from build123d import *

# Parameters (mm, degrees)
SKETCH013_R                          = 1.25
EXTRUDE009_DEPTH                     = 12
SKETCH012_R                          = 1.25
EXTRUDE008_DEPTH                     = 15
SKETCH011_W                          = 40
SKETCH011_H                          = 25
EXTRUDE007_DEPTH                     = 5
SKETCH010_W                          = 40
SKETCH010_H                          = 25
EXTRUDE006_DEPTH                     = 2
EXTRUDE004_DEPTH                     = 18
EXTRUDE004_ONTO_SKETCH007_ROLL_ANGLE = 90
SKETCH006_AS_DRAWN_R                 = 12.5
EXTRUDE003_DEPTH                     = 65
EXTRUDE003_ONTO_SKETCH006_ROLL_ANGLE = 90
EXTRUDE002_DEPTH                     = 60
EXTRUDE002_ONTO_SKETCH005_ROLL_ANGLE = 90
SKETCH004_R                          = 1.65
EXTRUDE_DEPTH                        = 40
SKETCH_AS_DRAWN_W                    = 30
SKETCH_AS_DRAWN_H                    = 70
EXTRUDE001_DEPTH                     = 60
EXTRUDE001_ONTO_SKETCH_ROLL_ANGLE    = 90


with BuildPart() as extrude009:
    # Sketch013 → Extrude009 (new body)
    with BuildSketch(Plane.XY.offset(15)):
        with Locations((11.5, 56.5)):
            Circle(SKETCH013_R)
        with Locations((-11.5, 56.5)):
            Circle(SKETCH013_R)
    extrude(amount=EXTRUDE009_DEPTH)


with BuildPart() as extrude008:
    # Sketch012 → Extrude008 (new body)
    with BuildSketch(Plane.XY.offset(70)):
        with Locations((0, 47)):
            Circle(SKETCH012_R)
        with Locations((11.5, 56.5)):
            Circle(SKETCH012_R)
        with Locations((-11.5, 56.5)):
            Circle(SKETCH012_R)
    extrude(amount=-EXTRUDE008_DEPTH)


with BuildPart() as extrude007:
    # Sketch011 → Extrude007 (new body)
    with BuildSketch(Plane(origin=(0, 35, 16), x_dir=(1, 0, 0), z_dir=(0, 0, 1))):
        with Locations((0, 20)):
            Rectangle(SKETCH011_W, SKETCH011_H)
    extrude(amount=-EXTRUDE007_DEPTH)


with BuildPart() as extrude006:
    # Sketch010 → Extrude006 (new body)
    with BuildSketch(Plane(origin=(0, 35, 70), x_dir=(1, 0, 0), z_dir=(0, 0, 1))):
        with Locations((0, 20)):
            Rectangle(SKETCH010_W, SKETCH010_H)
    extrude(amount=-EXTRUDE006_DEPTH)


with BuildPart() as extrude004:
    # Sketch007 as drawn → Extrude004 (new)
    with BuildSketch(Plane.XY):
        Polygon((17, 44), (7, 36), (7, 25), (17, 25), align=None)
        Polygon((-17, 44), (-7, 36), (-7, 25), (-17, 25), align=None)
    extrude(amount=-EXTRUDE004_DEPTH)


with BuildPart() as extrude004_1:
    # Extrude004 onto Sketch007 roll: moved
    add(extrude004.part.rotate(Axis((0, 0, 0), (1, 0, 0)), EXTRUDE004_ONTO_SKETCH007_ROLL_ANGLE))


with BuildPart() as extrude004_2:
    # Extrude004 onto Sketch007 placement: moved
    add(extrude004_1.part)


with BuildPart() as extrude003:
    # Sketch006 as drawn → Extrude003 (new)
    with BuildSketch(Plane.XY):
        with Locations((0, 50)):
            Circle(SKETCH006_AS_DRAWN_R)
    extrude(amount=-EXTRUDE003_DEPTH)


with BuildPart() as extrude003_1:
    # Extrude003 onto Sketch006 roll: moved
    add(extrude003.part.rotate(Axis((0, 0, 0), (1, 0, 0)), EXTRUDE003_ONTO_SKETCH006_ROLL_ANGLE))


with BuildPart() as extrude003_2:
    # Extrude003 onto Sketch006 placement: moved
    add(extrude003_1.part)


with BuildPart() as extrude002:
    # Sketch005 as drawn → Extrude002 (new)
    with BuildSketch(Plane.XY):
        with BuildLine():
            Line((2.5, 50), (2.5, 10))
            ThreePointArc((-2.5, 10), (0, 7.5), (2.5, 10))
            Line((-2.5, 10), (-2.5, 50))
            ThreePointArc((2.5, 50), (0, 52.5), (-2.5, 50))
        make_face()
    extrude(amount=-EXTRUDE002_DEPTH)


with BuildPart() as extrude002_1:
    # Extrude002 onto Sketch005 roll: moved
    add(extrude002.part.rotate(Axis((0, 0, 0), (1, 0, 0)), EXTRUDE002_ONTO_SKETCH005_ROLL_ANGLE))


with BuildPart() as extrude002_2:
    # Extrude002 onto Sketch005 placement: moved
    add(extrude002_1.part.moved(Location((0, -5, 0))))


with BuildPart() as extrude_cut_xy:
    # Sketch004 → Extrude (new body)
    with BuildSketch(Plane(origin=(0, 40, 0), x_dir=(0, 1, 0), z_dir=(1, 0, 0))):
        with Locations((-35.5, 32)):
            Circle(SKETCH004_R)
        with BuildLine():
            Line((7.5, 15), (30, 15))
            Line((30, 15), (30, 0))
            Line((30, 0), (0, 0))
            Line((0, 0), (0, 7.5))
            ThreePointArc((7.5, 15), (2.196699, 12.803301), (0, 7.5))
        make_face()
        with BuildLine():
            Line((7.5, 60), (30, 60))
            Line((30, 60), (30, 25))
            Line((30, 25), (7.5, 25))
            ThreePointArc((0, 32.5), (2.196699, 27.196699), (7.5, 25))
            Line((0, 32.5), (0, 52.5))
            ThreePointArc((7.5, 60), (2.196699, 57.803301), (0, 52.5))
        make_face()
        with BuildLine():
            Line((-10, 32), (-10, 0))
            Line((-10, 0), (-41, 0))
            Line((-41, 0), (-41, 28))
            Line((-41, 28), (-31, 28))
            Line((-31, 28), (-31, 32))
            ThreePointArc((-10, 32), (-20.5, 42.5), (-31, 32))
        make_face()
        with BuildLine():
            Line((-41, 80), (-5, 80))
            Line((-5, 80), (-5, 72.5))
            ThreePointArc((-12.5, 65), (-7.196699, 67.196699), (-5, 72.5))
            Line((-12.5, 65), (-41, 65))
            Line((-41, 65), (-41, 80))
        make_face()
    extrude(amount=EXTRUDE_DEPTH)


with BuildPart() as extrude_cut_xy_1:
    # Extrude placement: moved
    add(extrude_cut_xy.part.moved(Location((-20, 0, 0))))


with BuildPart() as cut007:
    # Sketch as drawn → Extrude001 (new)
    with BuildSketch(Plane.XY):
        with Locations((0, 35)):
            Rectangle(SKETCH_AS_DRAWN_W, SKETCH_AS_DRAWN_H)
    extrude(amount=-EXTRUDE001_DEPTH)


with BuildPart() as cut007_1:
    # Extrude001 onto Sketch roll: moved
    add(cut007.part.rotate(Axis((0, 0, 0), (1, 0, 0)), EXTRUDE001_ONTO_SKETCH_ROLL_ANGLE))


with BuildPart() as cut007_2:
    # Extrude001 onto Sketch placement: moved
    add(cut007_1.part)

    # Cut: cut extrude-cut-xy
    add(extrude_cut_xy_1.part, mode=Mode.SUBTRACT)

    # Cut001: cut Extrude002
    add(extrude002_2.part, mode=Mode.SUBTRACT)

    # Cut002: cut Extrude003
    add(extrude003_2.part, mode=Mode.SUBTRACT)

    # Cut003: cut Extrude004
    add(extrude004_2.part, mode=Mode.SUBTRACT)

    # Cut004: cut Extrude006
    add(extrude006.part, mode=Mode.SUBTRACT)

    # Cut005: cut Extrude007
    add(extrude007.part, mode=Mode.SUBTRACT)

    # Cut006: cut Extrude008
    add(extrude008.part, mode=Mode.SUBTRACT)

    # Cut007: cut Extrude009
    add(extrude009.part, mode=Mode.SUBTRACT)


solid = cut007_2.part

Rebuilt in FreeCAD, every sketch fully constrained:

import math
import FreeCAD as App
import Part
import Sketcher

V = App.Vector


def add_polygon(sketch, points):
    """Adds a closed chain of lines whose ends are joined by coincident constraints."""
    first, n = sketch.GeometryCount, len(points)
    for a, b in zip(points, points[1:] + points[:1]):
        sketch.addGeometry(Part.LineSegment(App.Vector(*a, 0), App.Vector(*b, 0)), False)
    for i in range(n):
        sketch.addConstraint(Sketcher.Constraint("Coincident", first + i, 2, first + (i + 1) % n, 1))

doc = App.newDocument("Part")
body = doc.addObject("PartDesign::Body", "Body")
body.AllowCompound = True

# Sketch on XY plane
sketch1 = body.newObject("Sketcher::SketchObject", "Sketch")
sketch1.AttachmentSupport = (doc.getObject("XY_Plane"), [""])
sketch1.MapMode = "FlatFace"
sketch1.AttachmentOffset = App.Placement(V(0, 0, 15), App.Rotation())
sketch1.addGeometry(Part.Circle(V(11.5, 56.5, 0), V(0, 0, 1), 1.2), False)
sketch1.addGeometry(Part.Circle(V(-11.5, 56.5, 0), V(0, 0, 1), 1.2), False)
sketch1.addConstraint(Sketcher.Constraint("Equal", 0, 1))
sketch1.addConstraint(Sketcher.Constraint("Symmetric", 0, 3, 1, 3, -2))
sketch1.addConstraint(Sketcher.Constraint("Diameter", 0, 2.5))
sketch1.addConstraint(Sketcher.Constraint("DistanceX", 1, 3, 0, 3, 23.0))
sketch1.addConstraint(Sketcher.Constraint("DistanceY", -1, 1, 0, 3, 56.5))
pad1 = body.newObject("PartDesign::Pad", "Pad")
pad1.Profile = sketch1
pad1.Length = 12
body2 = doc.addObject("PartDesign::Body", "Body001")
body2.AllowCompound = True

# Sketch on XY plane
sketch2 = body2.newObject("Sketcher::SketchObject", "Sketch001")
sketch2.AttachmentSupport = (doc.getObject("XY_Plane001"), [""])
sketch2.MapMode = "FlatFace"
sketch2.AttachmentOffset = App.Placement(V(0, 0, 70), App.Rotation())
sketch2.addGeometry(Part.Circle(V(0, 47, 0), V(0, 0, 1), 1.2), False)
sketch2.addGeometry(Part.Circle(V(11.5, 56.5, 0), V(0, 0, 1), 1.2), False)
sketch2.addGeometry(Part.Circle(V(-11.5, 56.5, 0), V(0, 0, 1), 1.2), False)
sketch2.addConstraint(Sketcher.Constraint("Equal", 0, 1))
sketch2.addConstraint(Sketcher.Constraint("Equal", 1, 2))
sketch2.addConstraint(Sketcher.Constraint("Symmetric", 1, 3, 2, 3, -2))
sketch2.addConstraint(Sketcher.Constraint("PointOnObject", 0, 3, -2))
sketch2.addConstraint(Sketcher.Constraint("Diameter", 0, 2.5))
sketch2.addConstraint(Sketcher.Constraint("DistanceY", -1, 1, 0, 3, 47.0))
sketch2.addConstraint(Sketcher.Constraint("DistanceX", 2, 3, 1, 3, 23.0))
sketch2.addConstraint(Sketcher.Constraint("DistanceY", -1, 1, 1, 3, 56.5))
pad2 = body2.newObject("PartDesign::Pad", "Pad001")
pad2.Profile = sketch2
pad2.Length = 15
pad2.Reversed = True
body3 = doc.addObject("PartDesign::Body", "Body002")

# Sketch on XY plane
sketch3 = body3.newObject("Sketcher::SketchObject", "Sketch002")
sketch3.AttachmentSupport = (doc.getObject("XY_Plane002"), [""])
sketch3.MapMode = "FlatFace"
sketch3.AttachmentOffset = App.Placement(V(0, 0, 16), App.Rotation())
add_polygon(sketch3, [(-20, 68), (-20, 42), (20, 42), (20, 68)])  # lines 0-3
sketch3.addConstraint(Sketcher.Constraint("Vertical", 0))
sketch3.addConstraint(Sketcher.Constraint("Horizontal", 1))
sketch3.addConstraint(Sketcher.Constraint("Vertical", 2))
sketch3.addConstraint(Sketcher.Constraint("Horizontal", 3))
sketch3.addConstraint(Sketcher.Constraint("DistanceX", 1, 1, 1, 2, 40.0))
sketch3.addConstraint(Sketcher.Constraint("DistanceY", 0, 2, 0, 1, 25.0))
sketch3.addConstraint(Sketcher.Constraint("DistanceX", 0, 2, -1, 1, 20.0))
sketch3.addConstraint(Sketcher.Constraint("DistanceY", -1, 1, 0, 2, 42.5))
pad3 = body3.newObject("PartDesign::Pad", "Pad002")
pad3.Profile = sketch3
pad3.Length = 5
pad3.Reversed = True
body4 = doc.addObject("PartDesign::Body", "Body003")

# Sketch on XY plane
sketch4 = body4.newObject("Sketcher::SketchObject", "Sketch003")
sketch4.AttachmentSupport = (doc.getObject("XY_Plane003"), [""])
sketch4.MapMode = "FlatFace"
sketch4.AttachmentOffset = App.Placement(V(0, 0, 70), App.Rotation())
add_polygon(sketch4, [(-20, 68), (-20, 42), (20, 42), (20, 68)])  # lines 0-3
sketch4.addConstraint(Sketcher.Constraint("Vertical", 0))
sketch4.addConstraint(Sketcher.Constraint("Horizontal", 1))
sketch4.addConstraint(Sketcher.Constraint("Vertical", 2))
sketch4.addConstraint(Sketcher.Constraint("Horizontal", 3))
sketch4.addConstraint(Sketcher.Constraint("DistanceX", 1, 1, 1, 2, 40.0))
sketch4.addConstraint(Sketcher.Constraint("DistanceY", 0, 2, 0, 1, 25.0))
sketch4.addConstraint(Sketcher.Constraint("DistanceX", 0, 2, -1, 1, 20.0))
sketch4.addConstraint(Sketcher.Constraint("DistanceY", -1, 1, 0, 2, 42.5))
pad4 = body4.newObject("PartDesign::Pad", "Pad003")
pad4.Profile = sketch4
pad4.Length = 2
pad4.Reversed = True
body5 = doc.addObject("PartDesign::Body", "Body004")
body5.AllowCompound = True

# Sketch on XY plane
sketch5 = body5.newObject("Sketcher::SketchObject", "Sketch004")
sketch5.AttachmentSupport = (doc.getObject("XY_Plane004"), [""])
sketch5.MapMode = "FlatFace"
add_polygon(sketch5, [(17, 44), (7, 36), (7, 25), (17, 25)])  # lines 0-3
add_polygon(sketch5, [(-7, 36), (-17, 44), (-17, 25), (-7, 25)])  # lines 4-7
sketch5.addConstraint(Sketcher.Constraint("Vertical", 1))
sketch5.addConstraint(Sketcher.Constraint("Horizontal", 2))
sketch5.addConstraint(Sketcher.Constraint("Vertical", 3))
sketch5.addConstraint(Sketcher.Constraint("Vertical", 5))
sketch5.addConstraint(Sketcher.Constraint("Horizontal", 6))
sketch5.addConstraint(Sketcher.Constraint("Vertical", 7))
sketch5.addConstraint(Sketcher.Constraint("Symmetric", 3, 2, 4, 2, -2))
sketch5.addConstraint(Sketcher.Constraint("Symmetric", 1, 2, 6, 2, -2))
sketch5.addConstraint(Sketcher.Constraint("Horizontal", 0, 2, 7, 2))
sketch5.addConstraint(Sketcher.Constraint("DistanceX", 2, 1, 2, 2, 10.0))
sketch5.addConstraint(Sketcher.Constraint("DistanceY", 1, 2, 1, 1, 11.0))
sketch5.addConstraint(Sketcher.Constraint("DistanceY", 3, 1, 3, 2, 19.0))
sketch5.addConstraint(Sketcher.Constraint("DistanceX", -1, 1, 0, 2, 7.0))
sketch5.addConstraint(Sketcher.Constraint("DistanceY", -1, 1, 0, 2, 36.0))
pad5 = body5.newObject("PartDesign::Pad", "Pad004")
pad5.Profile = sketch5
pad5.Length = 18
pad5.Reversed = True
body6 = doc.addObject("PartDesign::Body", "Body005")
body6.AllowCompound = True
doc.recompute()

body5.Placement = App.Placement(V(0, 0, 0), App.Rotation(V(1, 0, 0), 90))
boolean = body6.newObject("PartDesign::Boolean", "Boolean")
boolean.Type = "Fuse"
boolean.addObjects([body5])
body7 = doc.addObject("PartDesign::Body", "Body006")

# Sketch on XY plane
sketch6 = body7.newObject("Sketcher::SketchObject", "Sketch005")
sketch6.AttachmentSupport = (doc.getObject("XY_Plane006"), [""])
sketch6.MapMode = "FlatFace"
sketch6.addGeometry(Part.Circle(V(0, 50, 0), V(0, 0, 1), 12), False)
sketch6.addConstraint(Sketcher.Constraint("PointOnObject", 0, 3, -2))
sketch6.addConstraint(Sketcher.Constraint("Diameter", 0, 25.0))
sketch6.addConstraint(Sketcher.Constraint("DistanceY", -1, 1, 0, 3, 50.0))
pad6 = body7.newObject("PartDesign::Pad", "Pad005")
pad6.Profile = sketch6
pad6.Length = 65
pad6.Reversed = True
body8 = doc.addObject("PartDesign::Body", "Body007")
doc.recompute()

body7.Placement = App.Placement(V(0, 0, 0), App.Rotation(V(1, 0, 0), 90))
boolean2 = body8.newObject("PartDesign::Boolean", "Boolean001")
boolean2.Type = "Fuse"
boolean2.addObjects([body7])
body9 = doc.addObject("PartDesign::Body", "Body008")

# Sketch on XY plane
sketch7 = body9.newObject("Sketcher::SketchObject", "Sketch006")
sketch7.AttachmentSupport = (doc.getObject("XY_Plane008"), [""])
sketch7.MapMode = "FlatFace"
sketch7.addGeometry(Part.LineSegment(V(2.5, 10, 0), V(2.5, 50, 0)), False)
sketch7.addGeometry(Part.ArcOfCircle(Part.Circle(V(0, 50, 0), V(0, 0, 1), 2.5), math.radians(0), math.radians(180)), False)
sketch7.addGeometry(Part.LineSegment(V(-2.5, 50, 0), V(-2.5, 10, 0)), False)
sketch7.addGeometry(Part.ArcOfCircle(Part.Circle(V(0, 10, 0), V(0, 0, 1), 2.5), math.radians(180), math.radians(360)), False)
sketch7.addConstraint(Sketcher.Constraint("Tangent", 0, 2, 1, 1))
sketch7.addConstraint(Sketcher.Constraint("Tangent", 1, 2, 2, 1))
sketch7.addConstraint(Sketcher.Constraint("Tangent", 2, 2, 3, 1))
sketch7.addConstraint(Sketcher.Constraint("Tangent", 3, 2, 0, 1))
sketch7.addConstraint(Sketcher.Constraint("Vertical", 0))
sketch7.addConstraint(Sketcher.Constraint("Vertical", 2))
sketch7.addConstraint(Sketcher.Constraint("PointOnObject", 1, 3, -2))
sketch7.addConstraint(Sketcher.Constraint("Radius", 1, 2.5))
sketch7.addConstraint(Sketcher.Constraint("DistanceY", 0, 1, 0, 2, 40.0))
sketch7.addConstraint(Sketcher.Constraint("DistanceY", -1, 1, 1, 3, 50.0))
pad7 = body9.newObject("PartDesign::Pad", "Pad006")
pad7.Profile = sketch7
pad7.Length = 60
pad7.Reversed = True
body10 = doc.addObject("PartDesign::Body", "Body009")
doc.recompute()

body9.Placement = App.Placement(V(0, 0, 0), App.Rotation(V(1, 0, 0), 90))
boolean3 = body10.newObject("PartDesign::Boolean", "Boolean002")
boolean3.Type = "Fuse"
boolean3.addObjects([body9])
body11 = doc.addObject("PartDesign::Body", "Body010")
doc.recompute()

body10.Placement = App.Placement(V(0, -5, 0), App.Rotation(V(0, 0, 1), 0))
boolean4 = body11.newObject("PartDesign::Boolean", "Boolean003")
boolean4.Type = "Fuse"
boolean4.addObjects([body10])
body12 = doc.addObject("PartDesign::Body", "Body011")
body12.AllowCompound = True

# Sketch on YZ plane
sketch8 = body12.newObject("Sketcher::SketchObject", "Sketch007")
sketch8.AttachmentSupport = (doc.getObject("YZ_Plane011"), [""])
sketch8.MapMode = "FlatFace"
sketch8.addGeometry(Part.Circle(V(4.5, 32, 0), V(0, 0, 1), 1.6), False)
sketch8.addGeometry(Part.LineSegment(V(70, 15, 0), V(47.5, 15, 0)), False)
sketch8.addGeometry(Part.ArcOfCircle(Part.Circle(V(47.5, 7.5, 0), V(0, 0, 1), 7.5), math.radians(90), math.radians(180)), False)
sketch8.addGeometry(Part.LineSegment(V(40, 7.5, 0), V(40, 0, 0)), False)
sketch8.addGeometry(Part.LineSegment(V(40, 0, 0), V(70, 0, 0)), False)
sketch8.addGeometry(Part.LineSegment(V(70, 0, 0), V(70, 15, 0)), False)
sketch8.addGeometry(Part.LineSegment(V(70, 60, 0), V(47.5, 60, 0)), False)
sketch8.addGeometry(Part.ArcOfCircle(Part.Circle(V(47.5, 52.5, 0), V(0, 0, 1), 7.5), math.radians(90), math.radians(180)), False)
sketch8.addGeometry(Part.LineSegment(V(40, 52.5, 0), V(40, 32.5, 0)), False)
sketch8.addGeometry(Part.ArcOfCircle(Part.Circle(V(47.5, 32.5, 0), V(0, 0, 1), 7.5), math.radians(180), math.radians(270)), False)
sketch8.addGeometry(Part.LineSegment(V(47.5, 25, 0), V(70, 25, 0)), False)
sketch8.addGeometry(Part.LineSegment(V(70, 25, 0), V(70, 60, 0)), False)
sketch8.addGeometry(Part.LineSegment(V(30, 0, 0), V(30, 32, 0)), False)
sketch8.addGeometry(Part.ArcOfCircle(Part.Circle(V(19.5, 32, 0), V(0, 0, 1), 10.5), math.radians(0), math.radians(180)), False)
sketch8.addGeometry(Part.LineSegment(V(9, 32, 0), V(9, 28, 0)), False)
sketch8.addGeometry(Part.LineSegment(V(9, 28, 0), V(-1, 28, 0)), False)
sketch8.addGeometry(Part.LineSegment(V(-1, 28, 0), V(-1, 0, 0)), False)
sketch8.addGeometry(Part.LineSegment(V(-1, 0, 0), V(30, 0, 0)), False)
sketch8.addGeometry(Part.LineSegment(V(35, 80, 0), V(-1, 80, 0)), False)
sketch8.addGeometry(Part.LineSegment(V(-1, 80, 0), V(-1, 65, 0)), False)
sketch8.addGeometry(Part.LineSegment(V(-1, 65, 0), V(27.5, 65, 0)), False)
sketch8.addGeometry(Part.ArcOfCircle(Part.Circle(V(27.5, 72.5, 0), V(0, 0, 1), 7.5), math.radians(-90), math.radians(0)), False)
sketch8.addGeometry(Part.LineSegment(V(35, 72.5, 0), V(35, 80, 0)), False)
sketch8.addConstraint(Sketcher.Constraint("Tangent", 1, 2, 2, 1))
sketch8.addConstraint(Sketcher.Constraint("Tangent", 2, 2, 3, 1))
sketch8.addConstraint(Sketcher.Constraint("Coincident", 3, 2, 4, 1))
sketch8.addConstraint(Sketcher.Constraint("Coincident", 4, 2, 5, 1))
sketch8.addConstraint(Sketcher.Constraint("Coincident", 5, 2, 1, 1))
sketch8.addConstraint(Sketcher.Constraint("Tangent", 6, 2, 7, 1))
sketch8.addConstraint(Sketcher.Constraint("Tangent", 7, 2, 8, 1))
sketch8.addConstraint(Sketcher.Constraint("Tangent", 8, 2, 9, 1))
sketch8.addConstraint(Sketcher.Constraint("Tangent", 9, 2, 10, 1))
sketch8.addConstraint(Sketcher.Constraint("Coincident", 10, 2, 11, 1))
sketch8.addConstraint(Sketcher.Constraint("Coincident", 11, 2, 6, 1))
sketch8.addConstraint(Sketcher.Constraint("Tangent", 12, 2, 13, 1))
sketch8.addConstraint(Sketcher.Constraint("Tangent", 13, 2, 14, 1))
sketch8.addConstraint(Sketcher.Constraint("Coincident", 14, 2, 15, 1))
sketch8.addConstraint(Sketcher.Constraint("Coincident", 15, 2, 16, 1))
sketch8.addConstraint(Sketcher.Constraint("Coincident", 16, 2, 17, 1))
sketch8.addConstraint(Sketcher.Constraint("Coincident", 17, 2, 12, 1))
sketch8.addConstraint(Sketcher.Constraint("Coincident", 18, 2, 19, 1))
sketch8.addConstraint(Sketcher.Constraint("Coincident", 19, 2, 20, 1))
sketch8.addConstraint(Sketcher.Constraint("Tangent", 20, 2, 21, 1))
sketch8.addConstraint(Sketcher.Constraint("Tangent", 21, 2, 22, 1))
sketch8.addConstraint(Sketcher.Constraint("Coincident", 22, 2, 18, 1))
sketch8.addConstraint(Sketcher.Constraint("Horizontal", 1))
sketch8.addConstraint(Sketcher.Constraint("Vertical", 3))
sketch8.addConstraint(Sketcher.Constraint("Horizontal", 4))
sketch8.addConstraint(Sketcher.Constraint("Vertical", 5))
sketch8.addConstraint(Sketcher.Constraint("Horizontal", 6))
sketch8.addConstraint(Sketcher.Constraint("Vertical", 8))
sketch8.addConstraint(Sketcher.Constraint("Horizontal", 10))
sketch8.addConstraint(Sketcher.Constraint("Vertical", 11))
sketch8.addConstraint(Sketcher.Constraint("Vertical", 12))
sketch8.addConstraint(Sketcher.Constraint("Vertical", 14))
sketch8.addConstraint(Sketcher.Constraint("Horizontal", 15))
sketch8.addConstraint(Sketcher.Constraint("Vertical", 16))
sketch8.addConstraint(Sketcher.Constraint("Horizontal", 17))
sketch8.addConstraint(Sketcher.Constraint("Horizontal", 18))
sketch8.addConstraint(Sketcher.Constraint("Vertical", 19))
sketch8.addConstraint(Sketcher.Constraint("Horizontal", 20))
sketch8.addConstraint(Sketcher.Constraint("Vertical", 22))
sketch8.addConstraint(Sketcher.Constraint("Equal", 2, 7))
sketch8.addConstraint(Sketcher.Constraint("Equal", 7, 9))
sketch8.addConstraint(Sketcher.Constraint("Equal", 9, 21))
sketch8.addConstraint(Sketcher.Constraint("PointOnObject", 3, 2, -1))
sketch8.addConstraint(Sketcher.Constraint("PointOnObject", 16, 2, -1))
sketch8.addConstraint(Sketcher.Constraint("Horizontal", 0, 3, 13, 3))
sketch8.addConstraint(Sketcher.Constraint("Vertical", 2, 3, 7, 3))
sketch8.addConstraint(Sketcher.Constraint("Vertical", 5, 2, 10, 2))
sketch8.addConstraint(Sketcher.Constraint("Vertical", 16, 2, 18, 2))
sketch8.addConstraint(Sketcher.Constraint("Equal", 5, 19))
sketch8.addConstraint(Sketcher.Constraint("Diameter", 0, 3.3))
sketch8.addConstraint(Sketcher.Constraint("Radius", 2, 7.5))
sketch8.addConstraint(Sketcher.Constraint("Radius", 13, 10.5))
sketch8.addConstraint(Sketcher.Constraint("DistanceX", 4, 1, 4, 2, 30.0))
sketch8.addConstraint(Sketcher.Constraint("DistanceX", 15, 2, 15, 1, 10.0))
sketch8.addConstraint(Sketcher.Constraint("DistanceX", 18, 2, 18, 1, 36.0))
sketch8.addConstraint(Sketcher.Constraint("DistanceY", 5, 1, 5, 2, 15.0))
sketch8.addConstraint(Sketcher.Constraint("DistanceY", 8, 2, 8, 1, 20.0))
sketch8.addConstraint(Sketcher.Constraint("DistanceY", 12, 1, 12, 2, 32.0))
sketch8.addConstraint(Sketcher.Constraint("DistanceY", 14, 2, 14, 1, 4.0))
sketch8.addConstraint(Sketcher.Constraint("DistanceX", -1, 1, 2, 2, 40.0))
sketch8.addConstraint(Sketcher.Constraint("DistanceY", -1, 1, 6, 2, 60.0))
sketch8.addConstraint(Sketcher.Constraint("DistanceX", -1, 1, 12, 2, 30.0))
sketch8.addConstraint(Sketcher.Constraint("DistanceY", -1, 1, 18, 2, 80.0))
sketch8.addConstraint(Sketcher.Constraint("DistanceX", 0, 3, 2, 3, 43.0))
pad8 = body12.newObject("PartDesign::Pad", "Pad007")
pad8.Profile = sketch8
pad8.Length = 40
body13 = doc.addObject("PartDesign::Body", "Body012")
body13.AllowCompound = True
doc.recompute()

body12.Placement = App.Placement(V(-20, 0, 0), App.Rotation(V(0, 0, 1), 0))
boolean5 = body13.newObject("PartDesign::Boolean", "Boolean004")
boolean5.Type = "Fuse"
boolean5.addObjects([body12])
body14 = doc.addObject("PartDesign::Body", "Body013")

# Sketch on XY plane
sketch9 = body14.newObject("Sketcher::SketchObject", "Sketch008")
sketch9.AttachmentSupport = (doc.getObject("XY_Plane013"), [""])
sketch9.MapMode = "FlatFace"
add_polygon(sketch9, [(-15, 70), (-15, 0), (15, 0), (15, 70)])  # lines 0-3
sketch9.addConstraint(Sketcher.Constraint("Vertical", 0))
sketch9.addConstraint(Sketcher.Constraint("Horizontal", 1))
sketch9.addConstraint(Sketcher.Constraint("Vertical", 2))
sketch9.addConstraint(Sketcher.Constraint("Horizontal", 3))
sketch9.addConstraint(Sketcher.Constraint("Symmetric", 0, 2, 1, 2, -1, 1))
sketch9.addConstraint(Sketcher.Constraint("DistanceX", 1, 1, 1, 2, 30.0))
sketch9.addConstraint(Sketcher.Constraint("DistanceY", 0, 2, 0, 1, 70.0))
pad9 = body14.newObject("PartDesign::Pad", "Pad008")
pad9.Profile = sketch9
pad9.Length = 60
pad9.Reversed = True
body15 = doc.addObject("PartDesign::Body", "Body014")
doc.recompute()

body14.Placement = App.Placement(V(0, 0, 0), App.Rotation(V(1, 0, 0), 90))
boolean6 = body15.newObject("PartDesign::Boolean", "Boolean005")
boolean6.Type = "Fuse"
boolean6.addObjects([body14])
doc.recompute()

boolean7 = body15.newObject("PartDesign::Boolean", "Boolean006")
boolean7.Type = "Cut"
boolean7.addObjects([body13])
doc.recompute()

boolean8 = body15.newObject("PartDesign::Boolean", "Boolean007")
boolean8.Type = "Cut"
boolean8.addObjects([body11])
doc.recompute()

boolean9 = body15.newObject("PartDesign::Boolean", "Boolean008")
boolean9.Type = "Cut"
boolean9.addObjects([body8])
doc.recompute()

boolean10 = body15.newObject("PartDesign::Boolean", "Boolean009")
boolean10.Type = "Cut"
boolean10.addObjects([body6])
doc.recompute()

boolean11 = body15.newObject("PartDesign::Boolean", "Boolean010")
boolean11.Type = "Cut"
boolean11.addObjects([body4])
doc.recompute()

boolean12 = body15.newObject("PartDesign::Boolean", "Boolean011")
boolean12.Type = "Cut"
boolean12.addObjects([body3])
doc.recompute()

boolean13 = body15.newObject("PartDesign::Boolean", "Boolean012")
boolean13.Type = "Cut"
boolean13.addObjects([body2])
doc.recompute()

boolean14 = body15.newObject("PartDesign::Boolean", "Boolean013")
boolean14.Type = "Cut"
boolean14.addObjects([body])

doc.recompute()
